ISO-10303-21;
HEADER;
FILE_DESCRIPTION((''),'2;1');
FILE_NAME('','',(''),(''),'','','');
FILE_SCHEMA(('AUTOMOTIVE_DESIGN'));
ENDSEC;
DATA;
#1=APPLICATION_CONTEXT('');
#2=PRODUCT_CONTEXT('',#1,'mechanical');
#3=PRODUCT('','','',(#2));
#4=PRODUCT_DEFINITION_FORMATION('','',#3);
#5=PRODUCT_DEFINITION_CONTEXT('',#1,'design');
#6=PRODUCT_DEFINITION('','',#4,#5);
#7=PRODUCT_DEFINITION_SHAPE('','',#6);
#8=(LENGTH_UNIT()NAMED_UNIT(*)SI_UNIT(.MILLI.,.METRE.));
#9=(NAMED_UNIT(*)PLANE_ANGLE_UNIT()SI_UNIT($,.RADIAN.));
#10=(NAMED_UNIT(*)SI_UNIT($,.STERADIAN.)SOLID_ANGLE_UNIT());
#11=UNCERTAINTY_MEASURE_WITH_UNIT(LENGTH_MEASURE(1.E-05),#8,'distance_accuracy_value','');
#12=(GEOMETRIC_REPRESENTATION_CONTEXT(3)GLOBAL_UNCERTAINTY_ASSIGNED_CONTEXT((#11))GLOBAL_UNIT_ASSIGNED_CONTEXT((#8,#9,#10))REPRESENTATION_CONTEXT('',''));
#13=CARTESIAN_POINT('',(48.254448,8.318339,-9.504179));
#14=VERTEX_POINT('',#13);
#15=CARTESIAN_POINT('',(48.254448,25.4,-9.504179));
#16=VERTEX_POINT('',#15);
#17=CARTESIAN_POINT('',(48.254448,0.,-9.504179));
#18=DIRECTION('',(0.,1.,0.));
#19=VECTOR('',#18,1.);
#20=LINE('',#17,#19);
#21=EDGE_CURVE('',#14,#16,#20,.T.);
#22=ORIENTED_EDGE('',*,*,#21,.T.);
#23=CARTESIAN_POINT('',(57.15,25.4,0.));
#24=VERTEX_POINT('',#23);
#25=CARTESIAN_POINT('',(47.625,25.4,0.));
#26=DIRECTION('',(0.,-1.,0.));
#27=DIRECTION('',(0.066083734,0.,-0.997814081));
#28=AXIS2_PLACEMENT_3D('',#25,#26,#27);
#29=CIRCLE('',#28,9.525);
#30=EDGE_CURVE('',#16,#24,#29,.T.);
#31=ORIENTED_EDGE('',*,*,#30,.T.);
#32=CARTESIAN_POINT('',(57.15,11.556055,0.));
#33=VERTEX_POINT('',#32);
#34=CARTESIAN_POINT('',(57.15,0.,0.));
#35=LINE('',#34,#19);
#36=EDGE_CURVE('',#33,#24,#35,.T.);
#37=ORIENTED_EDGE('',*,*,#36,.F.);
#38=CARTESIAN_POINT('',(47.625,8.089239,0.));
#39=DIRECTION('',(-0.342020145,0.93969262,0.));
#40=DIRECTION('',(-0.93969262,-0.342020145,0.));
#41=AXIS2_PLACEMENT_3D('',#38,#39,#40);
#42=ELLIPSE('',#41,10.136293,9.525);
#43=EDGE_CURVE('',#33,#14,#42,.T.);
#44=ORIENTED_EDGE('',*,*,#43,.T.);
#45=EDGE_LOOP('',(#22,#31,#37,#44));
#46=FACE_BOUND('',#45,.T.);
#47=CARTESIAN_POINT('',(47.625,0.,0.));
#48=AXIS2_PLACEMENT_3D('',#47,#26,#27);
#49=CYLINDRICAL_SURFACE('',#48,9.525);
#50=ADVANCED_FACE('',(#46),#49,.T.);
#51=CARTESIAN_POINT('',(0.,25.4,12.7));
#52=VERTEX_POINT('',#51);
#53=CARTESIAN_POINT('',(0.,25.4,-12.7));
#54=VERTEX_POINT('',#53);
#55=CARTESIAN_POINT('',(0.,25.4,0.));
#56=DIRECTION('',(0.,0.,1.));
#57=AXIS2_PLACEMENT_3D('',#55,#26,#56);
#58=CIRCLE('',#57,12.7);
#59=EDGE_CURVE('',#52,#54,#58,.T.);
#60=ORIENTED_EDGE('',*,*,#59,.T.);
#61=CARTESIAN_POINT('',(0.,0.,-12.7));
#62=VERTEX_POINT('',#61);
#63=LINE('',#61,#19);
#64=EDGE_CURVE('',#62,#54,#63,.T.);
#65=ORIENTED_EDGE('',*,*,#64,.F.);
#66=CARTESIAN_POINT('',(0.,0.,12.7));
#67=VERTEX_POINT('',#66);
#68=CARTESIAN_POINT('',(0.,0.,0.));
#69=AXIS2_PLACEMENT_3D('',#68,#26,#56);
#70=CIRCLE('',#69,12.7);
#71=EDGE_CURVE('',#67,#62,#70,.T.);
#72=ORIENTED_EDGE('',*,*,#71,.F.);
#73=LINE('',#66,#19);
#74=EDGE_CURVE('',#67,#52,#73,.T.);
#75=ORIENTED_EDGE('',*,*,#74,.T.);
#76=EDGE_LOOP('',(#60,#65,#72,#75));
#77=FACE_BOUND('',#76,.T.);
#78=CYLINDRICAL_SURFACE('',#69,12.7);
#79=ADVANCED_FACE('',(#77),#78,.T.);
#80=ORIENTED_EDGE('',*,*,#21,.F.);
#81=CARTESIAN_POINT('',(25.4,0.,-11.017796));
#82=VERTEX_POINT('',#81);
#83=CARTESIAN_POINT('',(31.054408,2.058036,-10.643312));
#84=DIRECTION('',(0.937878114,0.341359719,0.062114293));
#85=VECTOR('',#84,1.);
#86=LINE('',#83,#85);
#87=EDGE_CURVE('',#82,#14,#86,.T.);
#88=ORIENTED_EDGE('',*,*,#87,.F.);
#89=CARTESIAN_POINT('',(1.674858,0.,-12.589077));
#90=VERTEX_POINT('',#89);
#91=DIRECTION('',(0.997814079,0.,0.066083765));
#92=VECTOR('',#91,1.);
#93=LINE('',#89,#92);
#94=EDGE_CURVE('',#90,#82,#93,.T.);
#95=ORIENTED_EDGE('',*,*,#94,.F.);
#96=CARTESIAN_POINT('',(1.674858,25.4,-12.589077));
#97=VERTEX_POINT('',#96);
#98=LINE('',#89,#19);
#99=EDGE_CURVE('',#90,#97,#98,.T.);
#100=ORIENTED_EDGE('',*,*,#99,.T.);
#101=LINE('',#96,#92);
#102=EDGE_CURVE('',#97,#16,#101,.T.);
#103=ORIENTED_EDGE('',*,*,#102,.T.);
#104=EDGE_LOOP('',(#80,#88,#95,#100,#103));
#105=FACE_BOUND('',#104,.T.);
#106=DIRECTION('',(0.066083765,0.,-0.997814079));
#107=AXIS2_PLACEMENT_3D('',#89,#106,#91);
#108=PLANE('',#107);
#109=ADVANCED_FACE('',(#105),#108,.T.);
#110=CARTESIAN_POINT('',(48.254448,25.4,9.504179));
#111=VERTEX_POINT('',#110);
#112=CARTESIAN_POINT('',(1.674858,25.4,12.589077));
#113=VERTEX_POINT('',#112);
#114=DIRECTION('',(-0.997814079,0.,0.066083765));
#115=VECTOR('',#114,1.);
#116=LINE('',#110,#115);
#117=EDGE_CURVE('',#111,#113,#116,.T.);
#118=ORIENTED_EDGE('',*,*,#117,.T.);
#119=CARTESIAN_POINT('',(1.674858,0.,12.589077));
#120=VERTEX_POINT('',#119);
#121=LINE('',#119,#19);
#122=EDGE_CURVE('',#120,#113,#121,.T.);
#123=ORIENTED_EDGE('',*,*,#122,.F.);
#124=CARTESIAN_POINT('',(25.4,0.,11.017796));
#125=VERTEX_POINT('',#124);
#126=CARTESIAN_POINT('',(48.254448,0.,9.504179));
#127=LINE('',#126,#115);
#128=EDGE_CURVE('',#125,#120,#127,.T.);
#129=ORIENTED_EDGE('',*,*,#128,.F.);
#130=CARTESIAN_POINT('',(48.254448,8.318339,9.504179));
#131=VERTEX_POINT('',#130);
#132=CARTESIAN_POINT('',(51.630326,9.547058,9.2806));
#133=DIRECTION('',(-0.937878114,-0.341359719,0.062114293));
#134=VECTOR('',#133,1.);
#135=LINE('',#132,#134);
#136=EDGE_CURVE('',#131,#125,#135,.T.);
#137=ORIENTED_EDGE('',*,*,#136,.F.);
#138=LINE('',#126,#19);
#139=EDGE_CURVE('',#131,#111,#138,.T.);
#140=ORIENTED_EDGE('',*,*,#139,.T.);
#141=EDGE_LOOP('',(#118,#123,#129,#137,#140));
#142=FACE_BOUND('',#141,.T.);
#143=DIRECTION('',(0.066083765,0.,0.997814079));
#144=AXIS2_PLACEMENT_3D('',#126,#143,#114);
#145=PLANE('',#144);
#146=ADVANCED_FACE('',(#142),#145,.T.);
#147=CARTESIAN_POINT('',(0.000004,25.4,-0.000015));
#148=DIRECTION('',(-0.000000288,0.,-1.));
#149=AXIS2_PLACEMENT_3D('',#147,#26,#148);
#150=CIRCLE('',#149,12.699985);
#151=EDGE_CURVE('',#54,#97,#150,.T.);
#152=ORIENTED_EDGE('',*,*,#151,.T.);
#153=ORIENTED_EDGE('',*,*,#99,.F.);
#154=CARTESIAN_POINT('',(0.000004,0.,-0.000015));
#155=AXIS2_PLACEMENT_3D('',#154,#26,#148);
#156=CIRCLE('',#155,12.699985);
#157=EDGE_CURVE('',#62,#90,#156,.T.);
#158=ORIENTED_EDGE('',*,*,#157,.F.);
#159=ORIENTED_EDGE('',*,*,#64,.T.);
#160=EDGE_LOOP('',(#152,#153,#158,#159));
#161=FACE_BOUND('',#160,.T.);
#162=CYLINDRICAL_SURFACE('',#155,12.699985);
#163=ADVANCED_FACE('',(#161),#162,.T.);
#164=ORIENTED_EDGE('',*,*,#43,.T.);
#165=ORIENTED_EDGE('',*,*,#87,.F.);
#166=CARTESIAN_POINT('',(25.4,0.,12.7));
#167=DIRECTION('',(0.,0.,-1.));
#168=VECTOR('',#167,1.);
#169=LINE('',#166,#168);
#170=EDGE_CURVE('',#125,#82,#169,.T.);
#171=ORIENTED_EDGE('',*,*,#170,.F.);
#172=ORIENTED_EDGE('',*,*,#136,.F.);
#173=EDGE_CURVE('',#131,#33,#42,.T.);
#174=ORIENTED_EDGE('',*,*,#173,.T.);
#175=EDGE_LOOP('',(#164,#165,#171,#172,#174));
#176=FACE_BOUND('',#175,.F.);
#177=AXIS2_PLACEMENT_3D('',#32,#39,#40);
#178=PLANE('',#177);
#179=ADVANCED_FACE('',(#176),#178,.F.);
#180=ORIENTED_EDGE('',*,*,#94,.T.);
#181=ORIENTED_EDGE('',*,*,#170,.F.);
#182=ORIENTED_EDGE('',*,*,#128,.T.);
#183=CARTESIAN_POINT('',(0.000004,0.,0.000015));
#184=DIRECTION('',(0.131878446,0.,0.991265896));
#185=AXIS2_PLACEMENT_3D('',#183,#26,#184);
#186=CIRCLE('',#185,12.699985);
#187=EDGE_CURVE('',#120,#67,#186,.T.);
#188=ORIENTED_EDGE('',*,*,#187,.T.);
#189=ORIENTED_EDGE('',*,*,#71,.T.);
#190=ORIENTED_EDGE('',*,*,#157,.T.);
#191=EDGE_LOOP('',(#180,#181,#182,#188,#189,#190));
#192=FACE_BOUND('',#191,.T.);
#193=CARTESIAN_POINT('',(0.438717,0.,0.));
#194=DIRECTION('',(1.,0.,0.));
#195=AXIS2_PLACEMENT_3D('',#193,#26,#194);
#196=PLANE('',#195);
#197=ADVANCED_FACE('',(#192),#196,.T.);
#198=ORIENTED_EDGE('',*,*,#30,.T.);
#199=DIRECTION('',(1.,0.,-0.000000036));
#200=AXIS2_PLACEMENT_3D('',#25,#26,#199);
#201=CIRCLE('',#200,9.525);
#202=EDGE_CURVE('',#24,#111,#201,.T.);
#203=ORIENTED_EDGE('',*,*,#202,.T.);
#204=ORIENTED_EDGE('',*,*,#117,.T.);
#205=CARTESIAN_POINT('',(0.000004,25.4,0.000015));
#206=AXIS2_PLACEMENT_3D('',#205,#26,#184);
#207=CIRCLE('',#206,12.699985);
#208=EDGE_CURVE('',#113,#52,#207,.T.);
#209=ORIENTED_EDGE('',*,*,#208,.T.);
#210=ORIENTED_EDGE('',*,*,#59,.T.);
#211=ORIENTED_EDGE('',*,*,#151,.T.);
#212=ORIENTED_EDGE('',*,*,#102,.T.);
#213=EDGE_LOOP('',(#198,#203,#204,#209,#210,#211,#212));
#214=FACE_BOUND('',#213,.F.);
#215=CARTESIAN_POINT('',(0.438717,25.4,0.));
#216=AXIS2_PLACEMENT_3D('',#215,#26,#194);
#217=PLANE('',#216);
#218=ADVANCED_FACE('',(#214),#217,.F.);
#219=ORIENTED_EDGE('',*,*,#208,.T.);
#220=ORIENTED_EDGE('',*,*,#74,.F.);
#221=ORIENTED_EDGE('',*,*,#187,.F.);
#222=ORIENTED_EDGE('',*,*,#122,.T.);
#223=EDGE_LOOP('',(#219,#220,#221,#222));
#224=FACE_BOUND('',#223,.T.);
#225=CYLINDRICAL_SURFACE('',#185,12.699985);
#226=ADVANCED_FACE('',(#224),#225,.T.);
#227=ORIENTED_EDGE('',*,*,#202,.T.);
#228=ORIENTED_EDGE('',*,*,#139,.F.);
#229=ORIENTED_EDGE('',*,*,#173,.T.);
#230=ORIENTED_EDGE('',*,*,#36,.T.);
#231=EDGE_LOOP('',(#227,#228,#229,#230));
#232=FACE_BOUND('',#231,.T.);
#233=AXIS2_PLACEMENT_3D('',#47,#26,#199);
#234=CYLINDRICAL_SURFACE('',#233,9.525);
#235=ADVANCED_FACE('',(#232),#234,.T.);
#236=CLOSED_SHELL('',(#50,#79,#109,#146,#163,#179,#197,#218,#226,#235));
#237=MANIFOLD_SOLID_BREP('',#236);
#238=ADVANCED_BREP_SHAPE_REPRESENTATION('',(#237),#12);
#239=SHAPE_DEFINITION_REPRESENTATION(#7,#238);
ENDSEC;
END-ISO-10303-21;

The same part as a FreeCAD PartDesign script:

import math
import FreeCAD as App
import Part
import Sketcher
Q = App.Units.Quantity


def add_polygon(sketch, points):
    """Adds a closed chain of lines whose ends are joined by coincident constraints."""
    first, n = sketch.GeometryCount, len(points)
    for a, b in zip(points, points[1:] + points[:1]):
        sketch.addGeometry(Part.LineSegment(App.Vector(*a, 0), App.Vector(*b, 0)), False)
    for i in range(n):
        sketch.addConstraint(Sketcher.Constraint("Coincident", first + i, 2, first + (i + 1) % n, 1))

doc = App.newDocument("Part")
params = doc.addObject("Spreadsheet::Sheet", "Params")
for row, (alias, value) in enumerate([
    ("sketch1_radius", "0.5 in"),
    ("sketch1_radius2", "0.375 in"),
    ("pad1_length", "1 in"),
    ("sketch2_width", "1.25 in"),
    ("pocket1_length", "1 in"),
], start=1):
    params.set(f"A{row}", alias)
    params.set(f"B{row}", "=" + value)
    params.setAlias(f"B{row}", alias)

body = doc.addObject("PartDesign::Body", "Body")

# Sketch on XZ plane
sketch1 = body.newObject("Sketcher::SketchObject", "Sketch")
sketch1.AttachmentSupport = (doc.getObject("XZ_Plane"), [""])
sketch1.MapMode = "FlatFace"
sketch1.addGeometry(Part.ArcOfCircle(Part.Circle(App.Vector(0, 0, 0), App.Vector(0, 0, 1), 12.7), math.radians(90), math.radians(270)), False)
sketch1.addGeometry(Part.ArcOfCircle(Part.Circle(App.Vector(0.000004, -0.000015, 0), App.Vector(0, 0, 1), 12.699985), math.radians(-90.000017), math.radians(-82.421846)), False)
sketch1.addGeometry(Part.LineSegment(App.Vector(1.674858, -12.589077, 0), App.Vector(48.254448, -9.504179, 0)), False)
sketch1.addGeometry(Part.ArcOfCircle(Part.Circle(App.Vector(47.625, 0, 0), App.Vector(0, 0, 1), 9.525), math.radians(-86.21092), math.radians(0.000002)), False)
sketch1.addGeometry(Part.ArcOfCircle(Part.Circle(App.Vector(47.625, 0, 0), App.Vector(0, 0, 1), 9.525), math.radians(-0.000002), math.radians(86.21092)), False)
sketch1.addGeometry(Part.LineSegment(App.Vector(48.254448, 9.504179, 0), App.Vector(1.674858, 12.589077, 0)), False)
sketch1.addGeometry(Part.ArcOfCircle(Part.Circle(App.Vector(0.000004, 0.000015, 0), App.Vector(0, 0, 1), 12.699985), math.radians(82.421846), math.radians(90.000017)), False)
sketch1.addConstraint(Sketcher.Constraint("Tangent", 0, 2, 1, 1))
sketch1.addConstraint(Sketcher.Constraint("Coincident", 1, 2, 2, 1))
sketch1.addConstraint(Sketcher.Constraint("Tangent", 2, 2, 3, 1))
sketch1.addConstraint(Sketcher.Constraint("Tangent", 3, 2, 4, 1))
sketch1.addConstraint(Sketcher.Constraint("Tangent", 4, 2, 5, 1))
sketch1.addConstraint(Sketcher.Constraint("Coincident", 5, 2, 6, 1))
sketch1.addConstraint(Sketcher.Constraint("Tangent", 6, 2, 0, 1))
sketch1.addConstraint(Sketcher.Constraint("Coincident", 0, 3, -1, 1))
sketch1.addConstraint(Sketcher.Constraint("Equal", 3, 4))
sketch1.addConstraint(Sketcher.Constraint("Equal", 1, 6))
sketch1.addConstraint(Sketcher.Constraint("Symmetric", 2, 2, 4, 2, -1))
sketch1.addConstraint(Sketcher.Constraint("PointOnObject", 0, 2, -2))
sketch1.addConstraint(Sketcher.Constraint("PointOnObject", 3, 2, -1))
sketch1.addConstraint(Sketcher.Constraint("PointOnObject", 6, 2, -2))
sketch1.addConstraint(Sketcher.Constraint("Radius", 0, Q("0.5 in")))
sketch1.addConstraint(Sketcher.Constraint("Radius", 3, Q("0.375 in")))
sketch1.addConstraint(Sketcher.Constraint("DistanceX", -1, 1, 3, 2, Q("2.25 in")))
sketch1.addConstraint(Sketcher.Constraint("Radius", 1, 12.699985))
sketch1.addConstraint(Sketcher.Constraint("DistanceY", 1, 2, 6, 3, 12.589092))
sketch1.setExpression("Constraints[14]", "Params.sketch1_radius")
sketch1.setExpression("Constraints[15]", "Params.sketch1_radius2")
pad1 = body.newObject("PartDesign::Pad", "Pad")
pad1.Profile = sketch1
pad1.setExpression("Length", "Params.pad1_length")
pad1.Reversed = True

# Sketch on XY plane
sketch2 = body.newObject("Sketcher::SketchObject", "Sketch001")
sketch2.AttachmentSupport = (doc.getObject("XY_Plane"), [""])
sketch2.MapMode = "FlatFace"
add_polygon(sketch2, [(25.4, 0), (57.15, 0), (57.15, 11.556055)])  # lines 0-2
sketch2.addConstraint(Sketcher.Constraint("Horizontal", 0))
sketch2.addConstraint(Sketcher.Constraint("Vertical", 1))
sketch2.addConstraint(Sketcher.Constraint("PointOnObject", 0, 2, -1))
sketch2.addConstraint(Sketcher.Constraint("DistanceX", -1, 1, 2, 2, Q("1 in")))
sketch2.addConstraint(Sketcher.Constraint("Angle", 2, Q("-160 deg")))
sketch2.addConstraint(Sketcher.Constraint("DistanceX", 0, 1, 0, 2, Q("1.25 in")))
sketch2.setExpression("Constraints[8]", "Params.sketch2_width")
pocket1 = body.newObject("PartDesign::Pocket", "Pocket")
pocket1.Profile = sketch2
pocket1.setExpression("Length", "Params.pocket1_length")
pocket1.Midplane = True

doc.recompute()
